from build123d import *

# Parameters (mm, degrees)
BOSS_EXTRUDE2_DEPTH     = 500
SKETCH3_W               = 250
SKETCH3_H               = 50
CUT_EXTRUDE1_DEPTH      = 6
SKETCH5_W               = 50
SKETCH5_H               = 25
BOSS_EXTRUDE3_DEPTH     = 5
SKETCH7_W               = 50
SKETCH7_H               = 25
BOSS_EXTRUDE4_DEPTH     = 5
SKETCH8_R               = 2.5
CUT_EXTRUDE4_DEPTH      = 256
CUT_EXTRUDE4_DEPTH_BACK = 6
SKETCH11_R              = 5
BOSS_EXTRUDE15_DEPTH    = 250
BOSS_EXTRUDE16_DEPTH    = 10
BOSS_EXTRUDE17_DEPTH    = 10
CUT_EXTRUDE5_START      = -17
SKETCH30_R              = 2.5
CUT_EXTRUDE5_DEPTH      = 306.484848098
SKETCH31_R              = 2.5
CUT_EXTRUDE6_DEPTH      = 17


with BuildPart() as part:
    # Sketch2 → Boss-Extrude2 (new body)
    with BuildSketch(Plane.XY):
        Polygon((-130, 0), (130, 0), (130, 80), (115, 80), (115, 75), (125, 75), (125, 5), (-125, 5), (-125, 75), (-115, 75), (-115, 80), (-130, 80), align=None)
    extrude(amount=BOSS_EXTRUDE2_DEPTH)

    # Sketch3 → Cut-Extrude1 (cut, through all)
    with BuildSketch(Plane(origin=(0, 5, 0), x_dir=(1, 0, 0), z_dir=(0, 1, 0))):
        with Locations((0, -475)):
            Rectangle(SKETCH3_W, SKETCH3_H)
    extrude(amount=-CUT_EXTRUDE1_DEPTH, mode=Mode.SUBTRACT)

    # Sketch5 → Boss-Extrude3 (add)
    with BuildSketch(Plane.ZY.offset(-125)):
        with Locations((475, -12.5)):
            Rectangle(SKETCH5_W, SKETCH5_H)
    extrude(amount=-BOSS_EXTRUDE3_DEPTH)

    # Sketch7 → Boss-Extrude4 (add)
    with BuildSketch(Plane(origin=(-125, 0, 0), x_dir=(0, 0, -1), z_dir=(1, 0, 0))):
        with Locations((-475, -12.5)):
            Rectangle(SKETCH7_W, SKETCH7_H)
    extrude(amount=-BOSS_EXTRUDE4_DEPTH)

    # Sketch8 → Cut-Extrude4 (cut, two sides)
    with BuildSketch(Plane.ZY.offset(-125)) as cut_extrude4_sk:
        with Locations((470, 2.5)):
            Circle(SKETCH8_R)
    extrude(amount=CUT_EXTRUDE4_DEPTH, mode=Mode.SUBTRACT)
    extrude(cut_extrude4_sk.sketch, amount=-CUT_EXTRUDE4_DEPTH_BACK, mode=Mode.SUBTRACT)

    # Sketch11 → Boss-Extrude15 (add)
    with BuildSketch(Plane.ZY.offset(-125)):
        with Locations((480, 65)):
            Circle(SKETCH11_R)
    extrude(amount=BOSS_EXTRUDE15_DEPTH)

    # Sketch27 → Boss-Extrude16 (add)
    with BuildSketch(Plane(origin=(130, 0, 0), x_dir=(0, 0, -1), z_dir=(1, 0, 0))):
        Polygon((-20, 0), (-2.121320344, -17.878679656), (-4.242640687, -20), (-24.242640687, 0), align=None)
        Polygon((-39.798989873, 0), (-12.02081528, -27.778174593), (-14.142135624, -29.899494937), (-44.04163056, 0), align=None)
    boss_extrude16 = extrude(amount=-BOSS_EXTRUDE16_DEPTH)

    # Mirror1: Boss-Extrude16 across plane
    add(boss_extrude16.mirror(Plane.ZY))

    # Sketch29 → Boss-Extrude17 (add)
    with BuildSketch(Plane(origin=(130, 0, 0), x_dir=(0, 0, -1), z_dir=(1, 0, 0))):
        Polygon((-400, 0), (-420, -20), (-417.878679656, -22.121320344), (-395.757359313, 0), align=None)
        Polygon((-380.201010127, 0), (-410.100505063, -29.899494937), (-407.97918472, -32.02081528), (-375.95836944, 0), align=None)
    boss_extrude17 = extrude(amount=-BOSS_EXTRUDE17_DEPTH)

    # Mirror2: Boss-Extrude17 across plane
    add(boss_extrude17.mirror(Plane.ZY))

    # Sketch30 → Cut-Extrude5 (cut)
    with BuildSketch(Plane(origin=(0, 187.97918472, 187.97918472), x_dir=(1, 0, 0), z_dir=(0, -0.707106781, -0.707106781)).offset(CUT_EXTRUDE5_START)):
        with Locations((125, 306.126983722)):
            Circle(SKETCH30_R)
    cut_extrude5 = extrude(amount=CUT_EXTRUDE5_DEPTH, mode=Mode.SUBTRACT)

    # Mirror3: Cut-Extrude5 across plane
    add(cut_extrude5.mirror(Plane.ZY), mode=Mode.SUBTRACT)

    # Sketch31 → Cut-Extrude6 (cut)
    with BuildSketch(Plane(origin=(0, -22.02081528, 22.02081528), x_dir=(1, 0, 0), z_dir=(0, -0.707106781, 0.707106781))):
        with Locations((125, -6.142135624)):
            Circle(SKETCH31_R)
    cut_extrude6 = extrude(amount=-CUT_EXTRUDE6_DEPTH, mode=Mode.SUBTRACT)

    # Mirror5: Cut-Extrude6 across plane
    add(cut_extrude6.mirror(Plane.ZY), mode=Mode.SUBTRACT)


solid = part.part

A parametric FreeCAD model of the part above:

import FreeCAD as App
import Part
import Sketcher
Q = App.Units.Quantity

doc = App.newDocument("Part")
params = doc.addObject("Spreadsheet::Sheet", "Params")
for row, (alias, value) in enumerate([
    ("sketch1_width", "260 mm"),
    ("sketch1_width2", "15 mm"),
    ("sketch1_width3", "10 mm"),
    ("sketch1_height", "80 mm"),
    ("sketch1_height2", "5 mm"),
    ("pad1_length", "500 mm"),
    ("sketch2_width", "250 mm"),
    ("sketch2_height", "50 mm"),
    ("sketch3_width", "25 mm"),
    ("sketch3_height", "50 mm"),
    ("pad2_length", "5 mm"),
    ("sketch4_width", "25 mm"),
    ("sketch4_height", "50 mm"),
    ("pad3_length", "5 mm"),
    ("sketch5_diameter", "5 mm"),
    ("sketch6_diameter", "10 mm"),
    ("pad4_length", "250 mm"),
    ("sketch7_length", "3 mm"),
    ("pad5_length", "10 mm"),
    ("sketch8_length", "3 mm"),
    ("pad6_length", "10 mm"),
    ("sketch9_diameter", "5 mm"),
    ("pocket3_length", "306.484848 mm"),
    ("sketch10_diameter", "5 mm"),
    ("pocket4_length", "17 mm"),
], start=1):
    params.set(f"A{row}", alias)
    params.set(f"B{row}", "=" + value)
    params.setAlias(f"B{row}", alias)

body = doc.addObject("PartDesign::Body", "Body")

# Sketch on XY plane
sketch1 = body.newObject("Sketcher::SketchObject", "Sketch")
sketch1.AttachmentSupport = (doc.getObject("XY_Plane"), [""])
sketch1.MapMode = "FlatFace"
sketch1.addGeometry(Part.LineSegment(App.Vector(-130, 0, 0), App.Vector(130, 0, 0)), False)
sketch1.addGeometry(Part.LineSegment(App.Vector(130, 0, 0), App.Vector(130, 80, 0)), False)
sketch1.addGeometry(Part.LineSegment(App.Vector(130, 80, 0), App.Vector(115, 80, 0)), False)
sketch1.addGeometry(Part.LineSegment(App.Vector(115, 80, 0), App.Vector(115, 75, 0)), False)
sketch1.addGeometry(Part.LineSegment(App.Vector(115, 75, 0), App.Vector(125, 75, 0)), False)
sketch1.addGeometry(Part.LineSegment(App.Vector(125, 75, 0), App.Vector(125, 5, 0)), False)
sketch1.addGeometry(Part.LineSegment(App.Vector(125, 5, 0), App.Vector(-125, 5, 0)), False)
sketch1.addGeometry(Part.LineSegment(App.Vector(-125, 5, 0), App.Vector(-125, 75, 0)), False)
sketch1.addGeometry(Part.LineSegment(App.Vector(-125, 75, 0), App.Vector(-115, 75, 0)), False)
sketch1.addGeometry(Part.LineSegment(App.Vector(-115, 75, 0), App.Vector(-115, 80, 0)), False)
sketch1.addGeometry(Part.LineSegment(App.Vector(-115, 80, 0), App.Vector(-130, 80, 0)), False)
sketch1.addGeometry(Part.LineSegment(App.Vector(-130, 80, 0), App.Vector(-130, 0, 0)), False)
sketch1.addConstraint(Sketcher.Constraint("Coincident", 0, 2, 1, 1))
sketch1.addConstraint(Sketcher.Constraint("Coincident", 1, 2, 2, 1))
sketch1.addConstraint(Sketcher.Constraint("Coincident", 2, 2, 3, 1))
sketch1.addConstraint(Sketcher.Constraint("Coincident", 3, 2, 4, 1))
sketch1.addConstraint(Sketcher.Constraint("Coincident", 4, 2, 5, 1))
sketch1.addConstraint(Sketcher.Constraint("Coincident", 5, 2, 6, 1))
sketch1.addConstraint(Sketcher.Constraint("Coincident", 6, 2, 7, 1))
sketch1.addConstraint(Sketcher.Constraint("Coincident", 7, 2, 8, 1))
sketch1.addConstraint(Sketcher.Constraint("Coincident", 8, 2, 9, 1))
sketch1.addConstraint(Sketcher.Constraint("Coincident", 9, 2, 10, 1))
sketch1.addConstraint(Sketcher.Constraint("Coincident", 10, 2, 11, 1))
sketch1.addConstraint(Sketcher.Constraint("Coincident", 11, 2, 0, 1))
sketch1.addConstraint(Sketcher.Constraint("Horizontal", 0))
sketch1.addConstraint(Sketcher.Constraint("Vertical", 1))
sketch1.addConstraint(Sketcher.Constraint("Horizontal", 2))
sketch1.addConstraint(Sketcher.Constraint("Vertical", 3))
sketch1.addConstraint(Sketcher.Constraint("Horizontal", 4))
sketch1.addConstraint(Sketcher.Constraint("Vertical", 5))
sketch1.addConstraint(Sketcher.Constraint("Horizontal", 6))
sketch1.addConstraint(Sketcher.Constraint("Vertical", 7))
sketch1.addConstraint(Sketcher.Constraint("Horizontal", 8))
sketch1.addConstraint(Sketcher.Constraint("Vertical", 9))
sketch1.addConstraint(Sketcher.Constraint("Horizontal", 10))
sketch1.addConstraint(Sketcher.Constraint("Vertical", 11))
sketch1.addConstraint(Sketcher.Constraint("Symmetric", 0, 2, 11, 2, -1, 1))
sketch1.addConstraint(Sketcher.Constraint("Symmetric", 4, 2, 7, 2, -2))
sketch1.addConstraint(Sketcher.Constraint("Symmetric", 2, 2, 9, 2, -2))
sketch1.addConstraint(Sketcher.Constraint("DistanceX", 0, 1, 0, 2, 260.0))
sketch1.addConstraint(Sketcher.Constraint("DistanceX", 2, 2, 2, 1, 15.0))
sketch1.addConstraint(Sketcher.Constraint("DistanceX", 4, 1, 4, 2, 10.0))
sketch1.addConstraint(Sketcher.Constraint("DistanceY", 1, 1, 1, 2, 80.0))
sketch1.addConstraint(Sketcher.Constraint("DistanceY", 3, 2, 3, 1, 5.0))
sketch1.addConstraint(Sketcher.Constraint("DistanceY", 5, 2, 5, 1, 70.0))
sketch1.setExpression("Constraints[27]", "Params.sketch1_width")
sketch1.setExpression("Constraints[28]", "Params.sketch1_width2")
sketch1.setExpression("Constraints[29]", "Params.sketch1_width3")
sketch1.setExpression("Constraints[30]", "Params.sketch1_height")
sketch1.setExpression("Constraints[31]", "Params.sketch1_height2")
pad1 = body.newObject("PartDesign::Pad", "Pad")
pad1.Profile = sketch1
pad1.setExpression("Length", "Params.pad1_length")

# Sketch on XZ plane
sketch2 = body.newObject("Sketcher::SketchObject", "Sketch001")
sketch2.AttachmentSupport = (doc.getObject("XZ_Plane"), [""])
sketch2.MapMode = "FlatFace"
sketch2.AttachmentOffset = App.Placement(App.Vector(0, 0, -5), App.Rotation())
sketch2.addGeometry(Part.LineSegment(App.Vector(-125, 450, 0), App.Vector(-125, 500, 0)), False)
sketch2.addGeometry(Part.LineSegment(App.Vector(-125, 500, 0), App.Vector(125, 500, 0)), False)
sketch2.addGeometry(Part.LineSegment(App.Vector(125, 500, 0), App.Vector(125, 450, 0)), False)
sketch2.addGeometry(Part.LineSegment(App.Vector(125, 450, 0), App.Vector(-125, 450, 0)), False)
sketch2.addConstraint(Sketcher.Constraint("Coincident", 0, 2, 1, 1))
sketch2.addConstraint(Sketcher.Constraint("Coincident", 1, 2, 2, 1))
sketch2.addConstraint(Sketcher.Constraint("Coincident", 2, 2, 3, 1))
sketch2.addConstraint(Sketcher.Constraint("Coincident", 3, 2, 0, 1))
sketch2.addConstraint(Sketcher.Constraint("Vertical", 0))
sketch2.addConstraint(Sketcher.Constraint("Horizontal", 1))
sketch2.addConstraint(Sketcher.Constraint("Vertical", 2))
sketch2.addConstraint(Sketcher.Constraint("Horizontal", 3))
sketch2.addConstraint(Sketcher.Constraint("DistanceX", 1, 1, 1, 2, 250.0))
sketch2.addConstraint(Sketcher.Constraint("DistanceY", 0, 1, 0, 2, 50.0))
sketch2.addConstraint(Sketcher.Constraint("DistanceX", 0, 2, -1, 1, 125.0))
sketch2.addConstraint(Sketcher.Constraint("DistanceY", -1, 1, 0, 2, 500.0))
sketch2.setExpression("Constraints[8]", "Params.sketch2_width")
sketch2.setExpression("Constraints[9]", "Params.sketch2_height")
pocket1 = body.newObject("PartDesign::Pocket", "Pocket")
pocket1.Profile = sketch2
pocket1.Type = "ThroughAll"
pocket1.Reversed = True

# Sketch on YZ plane
sketch3 = body.newObject("Sketcher::SketchObject", "Sketch002")
sketch3.AttachmentSupport = (doc.getObject("YZ_Plane"), [""])
sketch3.MapMode = "FlatFace"
sketch3.AttachmentOffset = App.Placement(App.Vector(0, 0, 125), App.Rotation())
sketch3.addGeometry(Part.LineSegment(App.Vector(0, 450, 0), App.Vector(-25, 450, 0)), False)
sketch3.addGeometry(Part.LineSegment(App.Vector(-25, 450, 0), App.Vector(-25, 500, 0)), False)
sketch3.addGeometry(Part.LineSegment(App.Vector(-25, 500, 0), App.Vector(0, 500, 0)), False)
sketch3.addGeometry(Part.LineSegment(App.Vector(0, 500, 0), App.Vector(0, 450, 0)), False)
sketch3.addConstraint(Sketcher.Constraint("Coincident", 0, 2, 1, 1))
sketch3.addConstraint(Sketcher.Constraint("Coincident", 1, 2, 2, 1))
sketch3.addConstraint(Sketcher.Constraint("Coincident", 2, 2, 3, 1))
sketch3.addConstraint(Sketcher.Constraint("Coincident", 3, 2, 0, 1))
sketch3.addConstraint(Sketcher.Constraint("Horizontal", 0))
sketch3.addConstraint(Sketcher.Constraint("Vertical", 1))
sketch3.addConstraint(Sketcher.Constraint("Horizontal", 2))
sketch3.addConstraint(Sketcher.Constraint("Vertical", 3))
sketch3.addConstraint(Sketcher.Constraint("PointOnObject", 2, 2, -2))
sketch3.addConstraint(Sketcher.Constraint("DistanceX", 0, 2, 0, 1, 25.0))
sketch3.addConstraint(Sketcher.Constraint("DistanceY", 1, 1, 1, 2, 50.0))
sketch3.addConstraint(Sketcher.Constraint("DistanceY", -1, 1, 0, 2, 450.0))
sketch3.setExpression("Constraints[9]", "Params.sketch3_width")
sketch3.setExpression("Constraints[10]", "Params.sketch3_height")
pad2 = body.newObject("PartDesign::Pad", "Pad001")
pad2.Profile = sketch3
pad2.setExpression("Length", "Params.pad2_length")

# Sketch on YZ plane
sketch4 = body.newObject("Sketcher::SketchObject", "Sketch003")
sketch4.AttachmentSupport = (doc.getObject("YZ_Plane"), [""])
sketch4.MapMode = "FlatFace"
sketch4.AttachmentOffset = App.Placement(App.Vector(0, 0, -125), App.Rotation())
sketch4.addGeometry(Part.LineSegment(App.Vector(0, 500, 0), App.Vector(-25, 500, 0)), False)
sketch4.addGeometry(Part.LineSegment(App.Vector(-25, 500, 0), App.Vector(-25, 450, 0)), False)
sketch4.addGeometry(Part.LineSegment(App.Vector(-25, 450, 0), App.Vector(0, 450, 0)), False)
sketch4.addGeometry(Part.LineSegment(App.Vector(0, 450, 0), App.Vector(0, 500, 0)), False)
sketch4.addConstraint(Sketcher.Constraint("Coincident", 0, 2, 1, 1))
sketch4.addConstraint(Sketcher.Constraint("Coincident", 1, 2, 2, 1))
sketch4.addConstraint(Sketcher.Constraint("Coincident", 2, 2, 3, 1))
sketch4.addConstraint(Sketcher.Constraint("Coincident", 3, 2, 0, 1))
sketch4.addConstraint(Sketcher.Constraint("Horizontal", 0))
sketch4.addConstraint(Sketcher.Constraint("Vertical", 1))
sketch4.addConstraint(Sketcher.Constraint("Horizontal", 2))
sketch4.addConstraint(Sketcher.Constraint("Vertical", 3))
sketch4.addConstraint(Sketcher.Constraint("PointOnObject", 2, 2, -2))
sketch4.addConstraint(Sketcher.Constraint("DistanceX", 0, 2, 0, 1, 25.0))
sketch4.addConstraint(Sketcher.Constraint("DistanceY", 1, 2, 1, 1, 50.0))
sketch4.addConstraint(Sketcher.Constraint("DistanceY", -1, 1, 0, 2, 500.0))
sketch4.setExpression("Constraints[9]", "Params.sketch4_width")
sketch4.setExpression("Constraints[10]", "Params.sketch4_height")
pad3 = body.newObject("PartDesign::Pad", "Pad002")
pad3.Profile = sketch4
pad3.setExpression("Length", "Params.pad3_length")
pad3.Reversed = True

# Sketch on YZ plane
sketch5 = body.newObject("Sketcher::SketchObject", "Sketch004")
sketch5.AttachmentSupport = (doc.getObject("YZ_Plane"), [""])
sketch5.MapMode = "FlatFace"
sketch5.AttachmentOffset = App.Placement(App.Vector(0, 0, 125), App.Rotation())
sketch5.addGeometry(Part.Circle(App.Vector(2.5, 470, 0), App.Vector(0, 0, 1), 2.5), False)
sketch5.addConstraint(Sketcher.Constraint("Diameter", 0, 5.0))
sketch5.addConstraint(Sketcher.Constraint("DistanceY", -1, 1, 0, 3, 470.0))
sketch5.addConstraint(Sketcher.Constraint("DistanceX", -1, 1, 0, 3, 2.5))
sketch5.setExpression("Constraints[0]", "Params.sketch5_diameter")
pocket2 = body.newObject("PartDesign::Pocket", "Pocket001")
pocket2.Profile = sketch5
pocket2.Type = "ThroughAll"
pocket2.Midplane = True

# Sketch on YZ plane
sketch6 = body.newObject("Sketcher::SketchObject", "Sketch005")
sketch6.AttachmentSupport = (doc.getObject("YZ_Plane"), [""])
sketch6.MapMode = "FlatFace"
sketch6.AttachmentOffset = App.Placement(App.Vector(0, 0, 125), App.Rotation())
sketch6.addGeometry(Part.Circle(App.Vector(65, 480, 0), App.Vector(0, 0, 1), 5), False)
sketch6.addConstraint(Sketcher.Constraint("Diameter", 0, 10.0))
sketch6.addConstraint(Sketcher.Constraint("DistanceX", -1, 1, 0, 3, 65.0))
sketch6.addConstraint(Sketcher.Constraint("DistanceY", -1, 1, 0, 3, 480.0))
sketch6.setExpression("Constraints[0]", "Params.sketch6_diameter")
pad4 = body.newObject("PartDesign::Pad", "Pad003")
pad4.Profile = sketch6
pad4.setExpression("Length", "Params.pad4_length")
pad4.Reversed = True

# Sketch on YZ plane
sketch7 = body.newObject("Sketcher::SketchObject", "Sketch006")
sketch7.AttachmentSupport = (doc.getObject("YZ_Plane"), [""])
sketch7.MapMode = "FlatFace"
sketch7.AttachmentOffset = App.Placement(App.Vector(0, 0, 130), App.Rotation())
sketch7.addGeometry(Part.LineSegment(App.Vector(-17.9, 2.1, 0), App.Vector(0, 20, 0)), False)
sketch7.addGeometry(Part.LineSegment(App.Vector(0, 20, 0), App.Vector(0, 24.2, 0)), False)
sketch7.addGeometry(Part.LineSegment(App.Vector(0, 24.2, 0), App.Vector(-20, 4.2, 0)), False)
sketch7.addGeometry(Part.LineSegment(App.Vector(-20, 4.2, 0), App.Vector(-17.9, 2.1, 0)), False)
sketch7.addGeometry(Part.LineSegment(App.Vector(-27.8, 12, 0), App.Vector(0, 39.8, 0)), False)
sketch7.addGeometry(Part.LineSegment(App.Vector(0, 39.8, 0), App.Vector(0, 44, 0)), False)
sketch7.addGeometry(Part.LineSegment(App.Vector(0, 44, 0), App.Vector(-29.9, 14.1, 0)), False)
sketch7.addGeometry(Part.LineSegment(App.Vector(-29.9, 14.1, 0), App.Vector(-27.8, 12, 0)), False)
sketch7.addConstraint(Sketcher.Constraint("Coincident", 0, 2, 1, 1))
sketch7.addConstraint(Sketcher.Constraint("Coincident", 1, 2, 2, 1))
sketch7.addConstraint(Sketcher.Constraint("Coincident", 2, 2, 3, 1))
sketch7.addConstraint(Sketcher.Constraint("Coincident", 3, 2, 0, 1))
sketch7.addConstraint(Sketcher.Constraint("Coincident", 4, 2, 5, 1))
sketch7.addConstraint(Sketcher.Constraint("Coincident", 5, 2, 6, 1))
sketch7.addConstraint(Sketcher.Constraint("Coincident", 6, 2, 7, 1))
sketch7.addConstraint(Sketcher.Constraint("Coincident", 7, 2, 4, 1))
sketch7.addConstraint(Sketcher.Constraint("Vertical", 1))
sketch7.addConstraint(Sketcher.Constraint("Vertical", 5))
sketch7.addConstraint(Sketcher.Constraint("PointOnObject", 0, 2, -2))
sketch7.addConstraint(Sketcher.Constraint("PointOnObject", 4, 2, -2))
sketch7.addConstraint(Sketcher.Constraint("Parallel", 0, 2))
sketch7.addConstraint(Sketcher.Constraint("Perpendicular", 2, 3))
sketch7.addConstraint(Sketcher.Constraint("Perpendicular", 3, 4))
sketch7.addConstraint(Sketcher.Constraint("Parallel", 4, 6))
sketch7.addConstraint(Sketcher.Constraint("Perpendicular", 6, 7))
sketch7.addConstraint(Sketcher.Constraint("Equal", 1, 5))
sketch7.addConstraint(Sketcher.Constraint("Angle", 0, Q("45 deg")))
sketch7.addConstraint(Sketcher.Constraint("Distance", 3, 3.0))
sketch7.addConstraint(Sketcher.Constraint("DistanceY", -1, 1, 0, 2, 20.0))
sketch7.addConstraint(Sketcher.Constraint("DistanceX", 2, 2, -1, 1, 20.0))
sketch7.addConstraint(Sketcher.Constraint("Distance", 4, 39.284271))
sketch7.addConstraint(Sketcher.Constraint("DistanceY", -1, 1, 4, 2, 39.79899))
sketch7.setExpression("Constraints[19]", "Params.sketch7_length")
pad5 = body.newObject("PartDesign::Pad", "Pad004")
pad5.Profile = sketch7
pad5.setExpression("Length", "Params.pad5_length")
pad5.Reversed = True
doc.recompute()

mirrored = body.newObject("PartDesign::Mirrored", "Mirrored")
mirrored.Originals = [pad5]
mirrored.MirrorPlane = (doc.getObject("YZ_Plane"), [""])
body.Tip = mirrored

# Sketch on YZ plane
sketch8 = body.newObject("Sketcher::SketchObject", "Sketch007")
sketch8.AttachmentSupport = (doc.getObject("YZ_Plane"), [""])
sketch8.MapMode = "FlatFace"
sketch8.AttachmentOffset = App.Placement(App.Vector(0, 0, 130), App.Rotation())
sketch8.addGeometry(Part.LineSegment(App.Vector(0, 400, 0), App.Vector(-20, 420, 0)), False)
sketch8.addGeometry(Part.LineSegment(App.Vector(-20, 420, 0), App.Vector(-22.1, 417.9, 0)), False)
sketch8.addGeometry(Part.LineSegment(App.Vector(-22.1, 417.9, 0), App.Vector(0, 395.8, 0)), False)
sketch8.addGeometry(Part.LineSegment(App.Vector(0, 395.8, 0), App.Vector(0, 400, 0)), False)
sketch8.addGeometry(Part.LineSegment(App.Vector(0, 380.2, 0), App.Vector(-29.9, 410.1, 0)), False)
sketch8.addGeometry(Part.LineSegment(App.Vector(-29.9, 410.1, 0), App.Vector(-32, 408, 0)), False)
sketch8.addGeometry(Part.LineSegment(App.Vector(-32, 408, 0), App.Vector(0, 376, 0)), False)
sketch8.addGeometry(Part.LineSegment(App.Vector(0, 376, 0), App.Vector(0, 380.2, 0)), False)
sketch8.addConstraint(Sketcher.Constraint("Coincident", 0, 2, 1, 1))
sketch8.addConstraint(Sketcher.Constraint("Coincident", 1, 2, 2, 1))
sketch8.addConstraint(Sketcher.Constraint("Coincident", 2, 2, 3, 1))
sketch8.addConstraint(Sketcher.Constraint("Coincident", 3, 2, 0, 1))
sketch8.addConstraint(Sketcher.Constraint("Coincident", 4, 2, 5, 1))
sketch8.addConstraint(Sketcher.Constraint("Coincident", 5, 2, 6, 1))
sketch8.addConstraint(Sketcher.Constraint("Coincident", 6, 2, 7, 1))
sketch8.addConstraint(Sketcher.Constraint("Coincident", 7, 2, 4, 1))
sketch8.addConstraint(Sketcher.Constraint("Vertical", 3))
sketch8.addConstraint(Sketcher.Constraint("Vertical", 7))
sketch8.addConstraint(Sketcher.Constraint("PointOnObject", 2, 2, -2))
sketch8.addConstraint(Sketcher.Constraint("PointOnObject", 6, 2, -2))
sketch8.addConstraint(Sketcher.Constraint("Perpendicular", 0, 1))
sketch8.addConstraint(Sketcher.Constraint("Perpendicular", 1, 2))
sketch8.addConstraint(Sketcher.Constraint("Parallel", 2, 4))
sketch8.addConstraint(Sketcher.Constraint("Perpendicular", 4, 5))
sketch8.addConstraint(Sketcher.Constraint("Perpendicular", 5, 6))
sketch8.addConstraint(Sketcher.Constraint("Equal", 3, 7))
sketch8.addConstraint(Sketcher.Constraint("Angle", 0, Q("135 deg")))
sketch8.addConstraint(Sketcher.Constraint("Distance", 1, 3.0))
sketch8.addConstraint(Sketcher.Constraint("DistanceX", 0, 2, -1, 1, 20.0))
sketch8.addConstraint(Sketcher.Constraint("DistanceY", -1, 1, 0, 2, 420.0))
sketch8.addConstraint(Sketcher.Constraint("Distance", 4, 42.284271))
sketch8.addConstraint(Sketcher.Constraint("DistanceY", -1, 1, 6, 2, 375.958369))
sketch8.setExpression("Constraints[19]", "Params.sketch8_length")
pad6 = body.newObject("PartDesign::Pad", "Pad005")
pad6.Profile = sketch8
pad6.setExpression("Length", "Params.pad6_length")
pad6.Reversed = True
doc.recompute()

mirrored2 = body.newObject("PartDesign::Mirrored", "Mirrored001")
mirrored2.Originals = [pad6]
mirrored2.MirrorPlane = (doc.getObject("YZ_Plane"), [""])
body.Tip = mirrored2

# Sketch on an angled plane
sketch9 = body.newObject("Sketcher::SketchObject", "Sketch008")
sketch9.Placement = App.Placement(App.Vector(0, 200, 200), App.Rotation(App.Vector(1, 0, 0), App.Vector(0, -0.707106781, 0.707106781), App.Vector(0, -0.707106781, -0.707106781), "ZXY"))
sketch9.addGeometry(Part.Circle(App.Vector(125, 306.1, 0), App.Vector(0, 0, 1), 2.5), False)
sketch9.addConstraint(Sketcher.Constraint("Diameter", 0, 5.0))
sketch9.addConstraint(Sketcher.Constraint("DistanceX", -1, 1, 0, 3, 125.0))
sketch9.addConstraint(Sketcher.Constraint("DistanceY", -1, 1, 0, 3, 306.126984))
sketch9.setExpression("Constraints[0]", "Params.sketch9_diameter")
pocket3 = body.newObject("PartDesign::Pocket", "Pocket002")
pocket3.Profile = sketch9
pocket3.setExpression("Length", "Params.pocket3_length")
pocket3.Reversed = True
doc.recompute()

mirrored3 = body.newObject("PartDesign::Mirrored", "Mirrored002")
mirrored3.Originals = [pocket3]
mirrored3.MirrorPlane = (doc.getObject("YZ_Plane"), [""])
body.Tip = mirrored3

# Sketch on an angled plane
sketch10 = body.newObject("Sketcher::SketchObject", "Sketch009")
sketch10.Placement = App.Placement(App.Vector(0, -22.020815, 22.020815), App.Rotation(App.Vector(1, 0, 0), App.Vector(0, 0.707106781, 0.707106781), App.Vector(0, -0.707106781, 0.707106781), "ZXY"))
sketch10.addGeometry(Part.Circle(App.Vector(125, -6.1, 0), App.Vector(0, 0, 1), 2.5), False)
sketch10.addConstraint(Sketcher.Constraint("Diameter", 0, 5.0))
sketch10.addConstraint(Sketcher.Constraint("DistanceX", -1, 1, 0, 3, 125.0))
sketch10.addConstraint(Sketcher.Constraint("DistanceY", 0, 3, -1, 1, 6.142136))
sketch10.setExpression("Constraints[0]", "Params.sketch10_diameter")
pocket4 = body.newObject("PartDesign::Pocket", "Pocket003")
pocket4.Profile = sketch10
pocket4.setExpression("Length", "Params.pocket4_length")
doc.recompute()

mirrored4 = body.newObject("PartDesign::Mirrored", "Mirrored003")
mirrored4.Originals = [pocket4]
mirrored4.MirrorPlane = (doc.getObject("YZ_Plane"), [""])
body.Tip = mirrored4

doc.recompute()
